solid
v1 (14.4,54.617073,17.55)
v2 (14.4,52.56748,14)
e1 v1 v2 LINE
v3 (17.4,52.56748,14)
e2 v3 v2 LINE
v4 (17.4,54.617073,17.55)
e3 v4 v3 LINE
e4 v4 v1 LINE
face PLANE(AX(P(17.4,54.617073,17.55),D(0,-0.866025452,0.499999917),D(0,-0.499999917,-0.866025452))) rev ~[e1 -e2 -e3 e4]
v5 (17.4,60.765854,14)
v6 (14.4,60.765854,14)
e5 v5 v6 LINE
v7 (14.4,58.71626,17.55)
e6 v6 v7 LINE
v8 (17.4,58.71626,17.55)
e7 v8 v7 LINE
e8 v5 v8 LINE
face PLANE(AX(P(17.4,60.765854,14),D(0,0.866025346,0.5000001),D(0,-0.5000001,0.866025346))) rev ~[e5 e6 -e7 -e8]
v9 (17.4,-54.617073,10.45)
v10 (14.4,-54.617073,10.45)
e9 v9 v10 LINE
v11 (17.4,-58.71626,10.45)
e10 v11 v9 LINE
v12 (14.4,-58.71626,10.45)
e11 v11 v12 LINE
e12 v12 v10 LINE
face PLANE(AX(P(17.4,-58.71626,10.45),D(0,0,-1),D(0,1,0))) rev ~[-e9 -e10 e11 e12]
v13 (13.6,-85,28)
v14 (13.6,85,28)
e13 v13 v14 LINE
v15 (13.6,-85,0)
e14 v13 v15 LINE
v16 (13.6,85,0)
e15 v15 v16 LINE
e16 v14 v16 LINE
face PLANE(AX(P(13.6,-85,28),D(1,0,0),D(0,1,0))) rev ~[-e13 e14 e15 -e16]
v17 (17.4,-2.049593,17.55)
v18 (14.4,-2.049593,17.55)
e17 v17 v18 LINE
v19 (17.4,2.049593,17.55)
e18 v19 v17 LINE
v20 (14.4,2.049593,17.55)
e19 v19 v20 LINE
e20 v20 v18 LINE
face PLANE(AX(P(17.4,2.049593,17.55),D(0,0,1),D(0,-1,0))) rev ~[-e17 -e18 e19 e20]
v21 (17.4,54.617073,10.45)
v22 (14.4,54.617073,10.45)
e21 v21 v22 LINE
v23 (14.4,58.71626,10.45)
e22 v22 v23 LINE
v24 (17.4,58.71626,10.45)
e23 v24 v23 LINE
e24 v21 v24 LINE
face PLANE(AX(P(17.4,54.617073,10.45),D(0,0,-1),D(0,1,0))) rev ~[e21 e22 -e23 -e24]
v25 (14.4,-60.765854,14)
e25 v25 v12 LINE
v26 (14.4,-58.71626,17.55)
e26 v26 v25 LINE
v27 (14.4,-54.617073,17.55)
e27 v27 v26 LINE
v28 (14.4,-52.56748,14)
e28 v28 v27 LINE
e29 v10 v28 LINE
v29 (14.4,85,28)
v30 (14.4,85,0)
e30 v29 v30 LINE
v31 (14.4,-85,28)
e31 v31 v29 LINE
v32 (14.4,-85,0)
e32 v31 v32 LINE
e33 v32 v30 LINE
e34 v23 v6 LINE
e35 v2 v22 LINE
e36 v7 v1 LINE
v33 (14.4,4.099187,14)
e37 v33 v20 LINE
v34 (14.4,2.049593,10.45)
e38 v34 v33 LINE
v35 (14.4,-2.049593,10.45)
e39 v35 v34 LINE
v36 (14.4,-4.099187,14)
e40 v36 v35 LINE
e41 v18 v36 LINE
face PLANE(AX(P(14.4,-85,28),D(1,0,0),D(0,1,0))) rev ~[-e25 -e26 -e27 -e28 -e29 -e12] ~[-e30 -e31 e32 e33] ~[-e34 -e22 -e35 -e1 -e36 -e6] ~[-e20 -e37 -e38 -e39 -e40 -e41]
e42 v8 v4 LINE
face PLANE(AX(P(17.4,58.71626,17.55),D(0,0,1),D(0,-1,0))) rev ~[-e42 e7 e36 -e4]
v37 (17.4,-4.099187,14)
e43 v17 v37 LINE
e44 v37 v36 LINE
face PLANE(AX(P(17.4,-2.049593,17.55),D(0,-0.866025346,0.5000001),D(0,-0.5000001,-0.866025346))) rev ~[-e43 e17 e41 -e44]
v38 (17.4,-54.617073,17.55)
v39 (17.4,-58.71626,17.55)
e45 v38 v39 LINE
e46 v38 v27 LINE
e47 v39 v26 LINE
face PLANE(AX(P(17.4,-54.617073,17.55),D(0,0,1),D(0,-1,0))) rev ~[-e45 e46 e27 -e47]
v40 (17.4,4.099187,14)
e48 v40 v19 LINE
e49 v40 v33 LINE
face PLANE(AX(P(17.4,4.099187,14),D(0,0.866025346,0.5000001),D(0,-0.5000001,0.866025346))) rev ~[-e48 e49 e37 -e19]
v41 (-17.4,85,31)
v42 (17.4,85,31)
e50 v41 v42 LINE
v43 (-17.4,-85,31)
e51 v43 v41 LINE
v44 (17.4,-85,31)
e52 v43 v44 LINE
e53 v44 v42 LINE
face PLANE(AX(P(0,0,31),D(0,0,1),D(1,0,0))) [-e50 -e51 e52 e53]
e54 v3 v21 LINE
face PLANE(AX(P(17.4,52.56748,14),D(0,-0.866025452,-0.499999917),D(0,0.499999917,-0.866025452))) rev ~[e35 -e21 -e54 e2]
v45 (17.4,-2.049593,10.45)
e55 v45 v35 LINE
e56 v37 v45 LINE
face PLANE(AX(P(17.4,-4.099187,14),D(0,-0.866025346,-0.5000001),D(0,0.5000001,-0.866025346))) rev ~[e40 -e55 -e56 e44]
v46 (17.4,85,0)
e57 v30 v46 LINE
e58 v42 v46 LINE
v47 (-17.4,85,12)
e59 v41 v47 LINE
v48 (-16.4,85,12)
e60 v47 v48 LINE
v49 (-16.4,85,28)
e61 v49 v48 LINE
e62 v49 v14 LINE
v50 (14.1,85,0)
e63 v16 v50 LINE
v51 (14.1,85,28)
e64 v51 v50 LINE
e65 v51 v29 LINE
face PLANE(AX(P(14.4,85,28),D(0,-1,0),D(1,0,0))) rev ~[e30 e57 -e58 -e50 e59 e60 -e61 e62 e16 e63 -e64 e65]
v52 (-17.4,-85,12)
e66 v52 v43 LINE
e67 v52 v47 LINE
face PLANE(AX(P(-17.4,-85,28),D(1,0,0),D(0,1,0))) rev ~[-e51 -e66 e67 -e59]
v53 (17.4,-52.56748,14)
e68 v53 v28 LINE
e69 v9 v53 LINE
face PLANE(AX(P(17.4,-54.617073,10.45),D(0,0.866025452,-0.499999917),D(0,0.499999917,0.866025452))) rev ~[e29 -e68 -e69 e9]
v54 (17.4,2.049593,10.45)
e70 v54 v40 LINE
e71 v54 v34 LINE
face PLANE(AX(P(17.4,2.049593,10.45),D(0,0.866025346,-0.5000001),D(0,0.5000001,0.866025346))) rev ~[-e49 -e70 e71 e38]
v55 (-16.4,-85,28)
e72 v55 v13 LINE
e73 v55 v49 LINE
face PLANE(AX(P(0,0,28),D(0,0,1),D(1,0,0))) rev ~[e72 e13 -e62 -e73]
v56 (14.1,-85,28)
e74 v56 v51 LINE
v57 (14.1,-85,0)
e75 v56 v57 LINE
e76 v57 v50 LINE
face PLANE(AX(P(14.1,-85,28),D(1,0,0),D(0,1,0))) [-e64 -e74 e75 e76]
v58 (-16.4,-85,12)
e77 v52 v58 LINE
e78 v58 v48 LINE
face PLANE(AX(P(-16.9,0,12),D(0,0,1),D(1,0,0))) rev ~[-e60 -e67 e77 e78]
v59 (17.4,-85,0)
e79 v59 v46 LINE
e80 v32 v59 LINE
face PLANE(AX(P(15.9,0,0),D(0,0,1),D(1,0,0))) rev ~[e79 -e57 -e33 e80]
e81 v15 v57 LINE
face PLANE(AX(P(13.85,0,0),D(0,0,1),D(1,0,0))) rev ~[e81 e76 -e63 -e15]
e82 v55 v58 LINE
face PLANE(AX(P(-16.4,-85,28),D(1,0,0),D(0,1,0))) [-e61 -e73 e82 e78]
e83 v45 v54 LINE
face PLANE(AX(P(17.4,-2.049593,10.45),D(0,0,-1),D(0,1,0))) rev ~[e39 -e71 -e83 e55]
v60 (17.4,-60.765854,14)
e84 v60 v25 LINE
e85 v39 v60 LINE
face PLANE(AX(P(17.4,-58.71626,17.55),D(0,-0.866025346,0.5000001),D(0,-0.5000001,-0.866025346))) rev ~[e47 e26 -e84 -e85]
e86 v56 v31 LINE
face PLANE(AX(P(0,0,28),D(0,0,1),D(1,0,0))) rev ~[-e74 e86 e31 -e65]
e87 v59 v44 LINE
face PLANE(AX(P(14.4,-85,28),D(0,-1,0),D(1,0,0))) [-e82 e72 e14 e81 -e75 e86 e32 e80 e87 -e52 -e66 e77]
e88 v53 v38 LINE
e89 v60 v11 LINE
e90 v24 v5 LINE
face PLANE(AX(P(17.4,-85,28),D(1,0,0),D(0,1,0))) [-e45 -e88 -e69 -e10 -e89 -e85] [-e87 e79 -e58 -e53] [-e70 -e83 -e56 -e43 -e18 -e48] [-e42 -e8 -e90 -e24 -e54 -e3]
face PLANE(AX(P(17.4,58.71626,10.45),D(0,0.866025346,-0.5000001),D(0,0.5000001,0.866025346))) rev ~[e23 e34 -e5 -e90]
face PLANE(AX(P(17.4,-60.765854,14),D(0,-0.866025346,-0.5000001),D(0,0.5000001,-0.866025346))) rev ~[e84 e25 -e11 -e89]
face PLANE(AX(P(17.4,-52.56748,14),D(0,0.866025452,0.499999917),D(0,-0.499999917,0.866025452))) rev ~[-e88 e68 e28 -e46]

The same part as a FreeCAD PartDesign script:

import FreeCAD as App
import Part
import Sketcher

V = App.Vector
Q = App.Units.Quantity

doc = App.newDocument("Part")
body = doc.addObject("PartDesign::Body", "Body")

# Sketch on XY plane
sketch1 = body.newObject("Sketcher::SketchObject", "Sketch")
sketch1.AttachmentSupport = (doc.getObject("XY_Plane"), [""])
sketch1.MapMode = "FlatFace"
sketch1.AttachmentOffset = App.Placement(V(0, 0, 28), App.Rotation())
sketch1.addGeometry([
    Part.LineSegment(V(-17, 85, 0), V(-17, -85, 0)),
    Part.LineSegment(V(-17, -85, 0), V(17, -85, 0)),
    Part.LineSegment(V(17, -85, 0), V(17, 85, 0)),
    Part.LineSegment(V(17, 85, 0), V(-17, 85, 0)),
], False)
sketch1.addConstraint([
    Sketcher.Constraint("Coincident", 0, 2, 1, 1),
    Sketcher.Constraint("Coincident", 1, 2, 2, 1),
    Sketcher.Constraint("Coincident", 2, 2, 3, 1),
    Sketcher.Constraint("Coincident", 3, 2, 0, 1),
    Sketcher.Constraint("Vertical", 0),
    Sketcher.Constraint("Horizontal", 1),
    Sketcher.Constraint("Vertical", 2),
    Sketcher.Constraint("Horizontal", 3),
    Sketcher.Constraint("Symmetric", 0, 2, 2, 2, -1, 1),
    Sketcher.Constraint("DistanceY", 0, 2, 0, 1, 170.0),
    Sketcher.Constraint("DistanceX", 1, 1, 1, 2, 34.8),
])
pad1 = body.newObject("PartDesign::Pad", "Pad")
pad1.Profile = sketch1
pad1.Length = 3

# Sketch on XY plane
sketch2 = body.newObject("Sketcher::SketchObject", "Sketch001")
sketch2.AttachmentSupport = (doc.getObject("XY_Plane"), [""])
sketch2.MapMode = "FlatFace"
sketch2.AttachmentOffset = App.Placement(V(0, 0, 28), App.Rotation())
sketch2.addGeometry([
    Part.LineSegment(V(-17.4, 85, 0), V(-17.4, -85, 0)),
    Part.LineSegment(V(-17.4, -85, 0), V(-16.4, -85, 0)),
    Part.LineSegment(V(-16.4, -85, 0), V(-16.4, 85, 0)),
    Part.LineSegment(V(-16.4, 85, 0), V(-17.4, 85, 0)),
], False)
sketch2.addConstraint([
    Sketcher.Constraint("Coincident", 0, 2, 1, 1),
    Sketcher.Constraint("Coincident", 1, 2, 2, 1),
    Sketcher.Constraint("Coincident", 2, 2, 3, 1),
    Sketcher.Constraint("Coincident", 3, 2, 0, 1),
    Sketcher.Constraint("Vertical", 0),
    Sketcher.Constraint("Horizontal", 1),
    Sketcher.Constraint("Vertical", 2),
    Sketcher.Constraint("Horizontal", 3),
    Sketcher.Constraint("DistanceX", 1, 1, 1, 2, 1.0),
    Sketcher.Constraint("DistanceY", 0, 2, 0, 1, 170.0),
    Sketcher.Constraint("DistanceY", 0, 2, -1, 1, 85.0),
    Sketcher.Constraint("DistanceX", 0, 2, -1, 1, 17.4),
])
pad2 = body.newObject("PartDesign::Pad", "Pad001")
pad2.Profile = sketch2
pad2.Length = 16
pad2.Reversed = True

# Sketch on XY plane
sketch3 = body.newObject("Sketcher::SketchObject", "Sketch002")
sketch3.AttachmentSupport = (doc.getObject("XY_Plane"), [""])
sketch3.MapMode = "FlatFace"
sketch3.AttachmentOffset = App.Placement(V(0, 0, 28), App.Rotation())
sketch3.addGeometry([
    Part.LineSegment(V(14.4, 85, 0), V(14.4, -85, 0)),  # 0
    Part.LineSegment(V(14.4, -85, 0), V(17.4, -85, 0)),  # 1
    Part.LineSegment(V(17.4, -85, 0), V(17.4, 85, 0)),  # 2
    Part.LineSegment(V(17.4, 85, 0), V(14.4, 85, 0)),  # 3
    Part.LineSegment(V(13.6, 85, 0), V(13.6, -85, 0)),  # 4
    Part.LineSegment(V(13.6, -85, 0), V(14.1, -85, 0)),  # 5
    Part.LineSegment(V(14.1, -85, 0), V(14.1, 85, 0)),  # 6
    Part.LineSegment(V(14.1, 85, 0), V(13.6, 85, 0)),  # 7
], False)
sketch3.addConstraint([
    Sketcher.Constraint("Coincident", 0, 2, 1, 1),
    Sketcher.Constraint("Coincident", 1, 2, 2, 1),
    Sketcher.Constraint("Coincident", 2, 2, 3, 1),
    Sketcher.Constraint("Coincident", 3, 2, 0, 1),
    Sketcher.Constraint("Coincident", 4, 2, 5, 1),
    Sketcher.Constraint("Coincident", 5, 2, 6, 1),
    Sketcher.Constraint("Coincident", 6, 2, 7, 1),
    Sketcher.Constraint("Coincident", 7, 2, 4, 1),
    Sketcher.Constraint("Vertical", 0),
    Sketcher.Constraint("Horizontal", 1),
    Sketcher.Constraint("Vertical", 2),
    Sketcher.Constraint("Horizontal", 3),
    Sketcher.Constraint("Vertical", 4),
    Sketcher.Constraint("Horizontal", 5),
    Sketcher.Constraint("Vertical", 6),
    Sketcher.Constraint("Horizontal", 7),
    Sketcher.Constraint("Horizontal", 1, 2, 4, 2),
    Sketcher.Constraint("Horizontal", 3, 2, 6, 2),
    Sketcher.Constraint("DistanceX", 1, 1, 1, 2, 3.0),
    Sketcher.Constraint("DistanceY", 0, 2, 0, 1, 170.0),
    Sketcher.Constraint("DistanceX", 5, 1, 5, 2, 0.5),
    Sketcher.Constraint("DistanceY", 0, 2, -1, 1, 85.0),
    Sketcher.Constraint("DistanceX", -1, 1, 0, 2, 14.4),
    Sketcher.Constraint("DistanceX", -1, 1, 4, 2, 13.6),
])
pad3 = body.newObject("PartDesign::Pad", "Pad002")
pad3.Profile = sketch3
pad3.Length = 28
pad3.Reversed = True

# Sketch on YZ plane
sketch4 = body.newObject("Sketcher::SketchObject", "Sketch003")
sketch4.AttachmentSupport = (doc.getObject("YZ_Plane"), [""])
sketch4.MapMode = "FlatFace"
sketch4.AttachmentOffset = App.Placement(V(0, 0, 17.4), App.Rotation())
sketch4.addGeometry([
    Part.LineSegment(V(-54.6, 10.4, 0), V(-52.6, 14, 0)),  # 0
    Part.LineSegment(V(-52.6, 14, 0), V(-54.6, 17.6, 0)),  # 1
    Part.LineSegment(V(-54.6, 17.6, 0), V(-58.7, 17.6, 0)),  # 2
    Part.LineSegment(V(-58.7, 17.6, 0), V(-60.8, 14, 0)),  # 3
    Part.LineSegment(V(-60.8, 14, 0), V(-58.7, 10.4, 0)),  # 4
    Part.LineSegment(V(-58.7, 10.4, 0), V(-54.6, 10.4, 0)),  # 5
    Part.LineSegment(V(2, 10.4, 0), V(4.1, 14, 0)),  # 6
    Part.LineSegment(V(4.1, 14, 0), V(2, 17.6, 0)),  # 7
    Part.LineSegment(V(2, 17.6, 0), V(-2, 17.6, 0)),  # 8
    Part.LineSegment(V(-2, 17.6, 0), V(-4.1, 14, 0)),  # 9
    Part.LineSegment(V(-4.1, 14, 0), V(-2, 10.4, 0)),  # 10
    Part.LineSegment(V(-2, 10.4, 0), V(2, 10.4, 0)),  # 11
    Part.LineSegment(V(54.6, 10.4, 0), V(58.7, 10.4, 0)),  # 12
    Part.LineSegment(V(58.7, 10.4, 0), V(60.8, 14, 0)),  # 13
    Part.LineSegment(V(60.8, 14, 0), V(58.7, 17.6, 0)),  # 14
    Part.LineSegment(V(58.7, 17.6, 0), V(54.6, 17.6, 0)),  # 15
    Part.LineSegment(V(54.6, 17.6, 0), V(52.6, 14, 0)),  # 16
    Part.LineSegment(V(52.6, 14, 0), V(54.6, 10.4, 0)),  # 17
], False)
sketch4.addConstraint([
    Sketcher.Constraint("Coincident", 0, 2, 1, 1),
    Sketcher.Constraint("Coincident", 1, 2, 2, 1),
    Sketcher.Constraint("Coincident", 2, 2, 3, 1),
    Sketcher.Constraint("Coincident", 3, 2, 4, 1),
    Sketcher.Constraint("Coincident", 4, 2, 5, 1),
    Sketcher.Constraint("Coincident", 5, 2, 0, 1),
    Sketcher.Constraint("Coincident", 6, 2, 7, 1),
    Sketcher.Constraint("Coincident", 7, 2, 8, 1),
    Sketcher.Constraint("Coincident", 8, 2, 9, 1),
    Sketcher.Constraint("Coincident", 9, 2, 10, 1),
    Sketcher.Constraint("Coincident", 10, 2, 11, 1),
    Sketcher.Constraint("Coincident", 11, 2, 6, 1),
    Sketcher.Constraint("Coincident", 12, 2, 13, 1),
    Sketcher.Constraint("Coincident", 13, 2, 14, 1),
    Sketcher.Constraint("Coincident", 14, 2, 15, 1),
    Sketcher.Constraint("Coincident", 15, 2, 16, 1),
    Sketcher.Constraint("Coincident", 16, 2, 17, 1),
    Sketcher.Constraint("Coincident", 17, 2, 12, 1),
    Sketcher.Constraint("Horizontal", 2),
    Sketcher.Constraint("Horizontal", 5),
    Sketcher.Constraint("Horizontal", 8),
    Sketcher.Constraint("Horizontal", 11),
    Sketcher.Constraint("Horizontal", 12),
    Sketcher.Constraint("Horizontal", 15),
    Sketcher.Constraint("Symmetric", 6, 2, 9, 2, -2),
    Sketcher.Constraint("Symmetric", 4, 2, 12, 2, -2),
    Sketcher.Constraint("Symmetric", 3, 2, 13, 2, -2),
    Sketcher.Constraint("Symmetric", 2, 2, 14, 2, -2),
    Sketcher.Constraint("Symmetric", 0, 2, 16, 2, -2),
    Sketcher.Constraint("Parallel", 0, 3),
    Sketcher.Constraint("Parallel", 1, 4),
    Sketcher.Constraint("Parallel", 3, 6),
    Sketcher.Constraint("Parallel", 4, 7),
    Sketcher.Constraint("Parallel", 6, 9),
    Sketcher.Constraint("Parallel", 7, 10),
    Sketcher.Constraint("Parallel", 9, 13),
    Sketcher.Constraint("Parallel", 13, 16),
    Sketcher.Constraint("Parallel", 14, 17),
    Sketcher.Constraint("Horizontal", 0, 2, 3, 2),
    Sketcher.Constraint("Horizontal", 3, 2, 6, 2),
    Sketcher.Constraint("Horizontal", 2, 2, 7, 2),
    Sketcher.Constraint("Horizontal", 5, 2, 10, 2),
    Sketcher.Constraint("Vertical", 2, 2, 4, 2),
    Sketcher.Constraint("Equal", 5, 8),
    Sketcher.Constraint("Angle", 0, Q("60.000006 deg")),
    Sketcher.Constraint("DistanceY", -1, 1, 0, 2, 14.0),
    Sketcher.Constraint("DistanceY", 4, 2, 2, 2, 7.1),
    Sketcher.Constraint("DistanceX", 2, 2, 2, 1, 4.099187),
    Sketcher.Constraint("DistanceX", 0, 2, -1, 1, 52.56748),
])
pocket1 = body.newObject("PartDesign::Pocket", "Pocket")
pocket1.Profile = sketch4
pocket1.Length = 3

doc.recompute()
